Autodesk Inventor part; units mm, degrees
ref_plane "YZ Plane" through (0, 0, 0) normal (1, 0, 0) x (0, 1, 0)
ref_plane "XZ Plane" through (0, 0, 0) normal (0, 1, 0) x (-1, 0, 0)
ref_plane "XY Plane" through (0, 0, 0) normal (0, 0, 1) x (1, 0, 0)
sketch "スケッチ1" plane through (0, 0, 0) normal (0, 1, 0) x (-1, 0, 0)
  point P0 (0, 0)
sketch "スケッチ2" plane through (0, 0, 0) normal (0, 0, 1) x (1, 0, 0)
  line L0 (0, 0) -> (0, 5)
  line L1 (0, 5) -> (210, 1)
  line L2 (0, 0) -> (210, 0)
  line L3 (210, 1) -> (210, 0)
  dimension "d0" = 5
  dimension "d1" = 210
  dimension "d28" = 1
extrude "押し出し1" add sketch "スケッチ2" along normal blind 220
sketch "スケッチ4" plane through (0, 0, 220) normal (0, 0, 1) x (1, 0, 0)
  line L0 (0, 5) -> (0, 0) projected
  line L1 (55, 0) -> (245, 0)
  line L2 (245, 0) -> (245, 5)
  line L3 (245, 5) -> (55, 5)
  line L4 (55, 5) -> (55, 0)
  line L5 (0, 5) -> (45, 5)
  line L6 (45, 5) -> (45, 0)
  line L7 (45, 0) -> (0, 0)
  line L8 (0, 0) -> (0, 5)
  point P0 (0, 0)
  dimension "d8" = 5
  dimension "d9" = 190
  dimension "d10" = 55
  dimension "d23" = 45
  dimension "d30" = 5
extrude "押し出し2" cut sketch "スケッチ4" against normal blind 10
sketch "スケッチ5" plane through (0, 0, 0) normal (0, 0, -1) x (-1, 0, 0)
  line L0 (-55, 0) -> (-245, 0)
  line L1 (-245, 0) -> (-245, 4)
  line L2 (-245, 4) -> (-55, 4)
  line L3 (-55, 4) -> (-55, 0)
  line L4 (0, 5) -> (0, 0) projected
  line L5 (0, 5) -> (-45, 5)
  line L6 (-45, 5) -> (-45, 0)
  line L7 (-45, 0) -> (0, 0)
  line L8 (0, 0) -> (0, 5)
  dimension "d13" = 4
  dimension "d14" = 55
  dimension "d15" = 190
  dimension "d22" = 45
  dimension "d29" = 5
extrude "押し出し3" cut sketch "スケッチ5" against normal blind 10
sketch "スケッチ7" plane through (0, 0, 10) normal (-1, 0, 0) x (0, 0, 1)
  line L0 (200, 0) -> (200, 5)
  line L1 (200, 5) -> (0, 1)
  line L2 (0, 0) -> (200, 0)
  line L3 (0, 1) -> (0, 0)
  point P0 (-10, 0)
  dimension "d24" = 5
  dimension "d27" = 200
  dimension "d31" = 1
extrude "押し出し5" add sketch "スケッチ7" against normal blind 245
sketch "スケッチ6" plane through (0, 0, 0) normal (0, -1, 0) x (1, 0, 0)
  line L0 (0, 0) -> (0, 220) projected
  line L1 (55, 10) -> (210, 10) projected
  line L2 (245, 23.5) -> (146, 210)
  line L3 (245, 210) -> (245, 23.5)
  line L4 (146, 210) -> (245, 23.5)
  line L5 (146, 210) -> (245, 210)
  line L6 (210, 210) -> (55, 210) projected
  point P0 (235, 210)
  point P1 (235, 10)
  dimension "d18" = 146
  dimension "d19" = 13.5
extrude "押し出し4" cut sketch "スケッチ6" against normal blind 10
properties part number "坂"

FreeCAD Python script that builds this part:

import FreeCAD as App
import Part
import Sketcher

V = App.Vector

doc = App.newDocument("Part")
body = doc.addObject("PartDesign::Body", "Body")

# Sketch on XY plane
sketch1 = body.newObject("Sketcher::SketchObject", "Sketch")
sketch1.AttachmentSupport = (doc.getObject("XY_Plane"), [""])
sketch1.MapMode = "FlatFace"
sketch1.addGeometry(Part.LineSegment(V(0, 5, 0), V(0, 0, 0)), False)
sketch1.addGeometry(Part.LineSegment(V(0, 0, 0), V(210, 0, 0)), False)
sketch1.addGeometry(Part.LineSegment(V(210, 0, 0), V(210, 1, 0)), False)
sketch1.addGeometry(Part.LineSegment(V(210, 1, 0), V(0, 5, 0)), False)
sketch1.addConstraint(Sketcher.Constraint("Coincident", 0, 2, 1, 1))
sketch1.addConstraint(Sketcher.Constraint("Coincident", 1, 2, 2, 1))
sketch1.addConstraint(Sketcher.Constraint("Coincident", 2, 2, 3, 1))
sketch1.addConstraint(Sketcher.Constraint("Coincident", 3, 2, 0, 1))
sketch1.addConstraint(Sketcher.Constraint("Vertical", 0))
sketch1.addConstraint(Sketcher.Constraint("Horizontal", 1))
sketch1.addConstraint(Sketcher.Constraint("Vertical", 2))
sketch1.addConstraint(Sketcher.Constraint("Coincident", 0, 2, -1, 1))
sketch1.addConstraint(Sketcher.Constraint("DistanceX", 1, 1, 1, 2, 210.0))
sketch1.addConstraint(Sketcher.Constraint("DistanceY", 0, 2, 0, 1, 5.0))
sketch1.addConstraint(Sketcher.Constraint("DistanceY", 2, 1, 2, 2, 1.0))
pad1 = body.newObject("PartDesign::Pad", "Pad")
pad1.Profile = sketch1
pad1.Length = 220

# Sketch on XY plane
sketch2 = body.newObject("Sketcher::SketchObject", "Sketch001")
sketch2.AttachmentSupport = (doc.getObject("XY_Plane"), [""])
sketch2.MapMode = "FlatFace"
sketch2.AttachmentOffset = App.Placement(V(0, 0, 220), App.Rotation())
sketch2.addGeometry(Part.LineSegment(V(45, 5, 0), V(0, 5, 0)), False)
sketch2.addGeometry(Part.LineSegment(V(0, 5, 0), V(0, 0, 0)), False)
sketch2.addGeometry(Part.LineSegment(V(0, 0, 0), V(45, 0, 0)), False)
sketch2.addGeometry(Part.LineSegment(V(45, 0, 0), V(45, 5, 0)), False)
sketch2.addGeometry(Part.LineSegment(V(55, 5, 0), V(55, 0, 0)), False)
sketch2.addGeometry(Part.LineSegment(V(55, 0, 0), V(245, 0, 0)), False)
sketch2.addGeometry(Part.LineSegment(V(245, 0, 0), V(245, 5, 0)), False)
sketch2.addGeometry(Part.LineSegment(V(245, 5, 0), V(55, 5, 0)), False)
sketch2.addConstraint(Sketcher.Constraint("Coincident", 0, 2, 1, 1))
sketch2.addConstraint(Sketcher.Constraint("Coincident", 1, 2, 2, 1))
sketch2.addConstraint(Sketcher.Constraint("Coincident", 2, 2, 3, 1))
sketch2.addConstraint(Sketcher.Constraint("Coincident", 3, 2, 0, 1))
sketch2.addConstraint(Sketcher.Constraint("Coincident", 4, 2, 5, 1))
sketch2.addConstraint(Sketcher.Constraint("Coincident", 5, 2, 6, 1))
sketch2.addConstraint(Sketcher.Constraint("Coincident", 6, 2, 7, 1))
sketch2.addConstraint(Sketcher.Constraint("Coincident", 7, 2, 4, 1))
sketch2.addConstraint(Sketcher.Constraint("Horizontal", 0))
sketch2.addConstraint(Sketcher.Constraint("Vertical", 1))
sketch2.addConstraint(Sketcher.Constraint("Horizontal", 2))
sketch2.addConstraint(Sketcher.Constraint("Vertical", 3))
sketch2.addConstraint(Sketcher.Constraint("Vertical", 4))
sketch2.addConstraint(Sketcher.Constraint("Horizontal", 5))
sketch2.addConstraint(Sketcher.Constraint("Vertical", 6))
sketch2.addConstraint(Sketcher.Constraint("Horizontal", 7))
sketch2.addConstraint(Sketcher.Constraint("Coincident", 1, 2, -1, 1))
sketch2.addConstraint(Sketcher.Constraint("PointOnObject", 4, 2, -1))
sketch2.addConstraint(Sketcher.Constraint("Horizontal", 3, 2, 6, 2))
sketch2.addConstraint(Sketcher.Constraint("DistanceX", 0, 2, 0, 1, 45.0))
sketch2.addConstraint(Sketcher.Constraint("DistanceX", 5, 1, 5, 2, 190.0))
sketch2.addConstraint(Sketcher.Constraint("DistanceY", 1, 2, 1, 1, 5.0))
sketch2.addConstraint(Sketcher.Constraint("DistanceX", -1, 1, 4, 2, 55.0))
pocket1 = body.newObject("PartDesign::Pocket", "Pocket")
pocket1.Profile = sketch2
pocket1.Length = 10

# Sketch on XY plane
sketch3 = body.newObject("Sketcher::SketchObject", "Sketch002")
sketch3.AttachmentSupport = (doc.getObject("XY_Plane"), [""])
sketch3.MapMode = "FlatFace"
sketch3.addGeometry(Part.LineSegment(V(245, 0, 0), V(55, 0, 0)), False)
sketch3.addGeometry(Part.LineSegment(V(55, 0, 0), V(55, 4, 0)), False)
sketch3.addGeometry(Part.LineSegment(V(55, 4, 0), V(245, 4, 0)), False)
sketch3.addGeometry(Part.LineSegment(V(245, 4, 0), V(245, 0, 0)), False)
sketch3.addGeometry(Part.LineSegment(V(0, 0, 0), V(0, 5, 0)), False)
sketch3.addGeometry(Part.LineSegment(V(0, 5, 0), V(45, 5, 0)), False)
sketch3.addGeometry(Part.LineSegment(V(45, 5, 0), V(45, 0, 0)), False)
sketch3.addGeometry(Part.LineSegment(V(45, 0, 0), V(0, 0, 0)), False)
sketch3.addConstraint(Sketcher.Constraint("Coincident", 0, 2, 1, 1))
sketch3.addConstraint(Sketcher.Constraint("Coincident", 1, 2, 2, 1))
sketch3.addConstraint(Sketcher.Constraint("Coincident", 2, 2, 3, 1))
sketch3.addConstraint(Sketcher.Constraint("Coincident", 3, 2, 0, 1))
sketch3.addConstraint(Sketcher.Constraint("Coincident", 4, 2, 5, 1))
sketch3.addConstraint(Sketcher.Constraint("Coincident", 5, 2, 6, 1))
sketch3.addConstraint(Sketcher.Constraint("Coincident", 6, 2, 7, 1))
sketch3.addConstraint(Sketcher.Constraint("Coincident", 7, 2, 4, 1))
sketch3.addConstraint(Sketcher.Constraint("Horizontal", 0))
sketch3.addConstraint(Sketcher.Constraint("Vertical", 1))
sketch3.addConstraint(Sketcher.Constraint("Horizontal", 2))
sketch3.addConstraint(Sketcher.Constraint("Vertical", 3))
sketch3.addConstraint(Sketcher.Constraint("Vertical", 4))
sketch3.addConstraint(Sketcher.Constraint("Horizontal", 5))
sketch3.addConstraint(Sketcher.Constraint("Vertical", 6))
sketch3.addConstraint(Sketcher.Constraint("Horizontal", 7))
sketch3.addConstraint(Sketcher.Constraint("Coincident", 7, 2, -1, 1))
sketch3.addConstraint(Sketcher.Constraint("PointOnObject", 0, 2, -1))
sketch3.addConstraint(Sketcher.Constraint("DistanceX", 0, 2, 0, 1, 190.0))
sketch3.addConstraint(Sketcher.Constraint("DistanceX", 5, 1, 5, 2, 45.0))
sketch3.addConstraint(Sketcher.Constraint("DistanceY", 1, 1, 1, 2, 4.0))
sketch3.addConstraint(Sketcher.Constraint("DistanceY", 4, 1, 4, 2, 5.0))
sketch3.addConstraint(Sketcher.Constraint("DistanceX", -1, 1, 0, 2, 55.0))
pocket2 = body.newObject("PartDesign::Pocket", "Pocket001")
pocket2.Profile = sketch3
pocket2.Length = 10
pocket2.Reversed = True

# Sketch on YZ plane
sketch4 = body.newObject("Sketcher::SketchObject", "Sketch003")
sketch4.AttachmentSupport = (doc.getObject("YZ_Plane"), [""])
sketch4.MapMode = "FlatFace"
sketch4.addGeometry(Part.LineSegment(V(0, 10, 0), V(0, 210, 0)), False)
sketch4.addGeometry(Part.LineSegment(V(0, 210, 0), V(5, 210, 0)), False)
sketch4.addGeometry(Part.LineSegment(V(5, 210, 0), V(1, 10, 0)), False)
sketch4.addGeometry(Part.LineSegment(V(1, 10, 0), V(0, 10, 0)), False)
sketch4.addConstraint(Sketcher.Constraint("Coincident", 0, 2, 1, 1))
sketch4.addConstraint(Sketcher.Constraint("Coincident", 1, 2, 2, 1))
sketch4.addConstraint(Sketcher.Constraint("Coincident", 2, 2, 3, 1))
sketch4.addConstraint(Sketcher.Constraint("Coincident", 3, 2, 0, 1))
sketch4.addConstraint(Sketcher.Constraint("Vertical", 0))
sketch4.addConstraint(Sketcher.Constraint("Horizontal", 1))
sketch4.addConstraint(Sketcher.Constraint("Horizontal", 3))
sketch4.addConstraint(Sketcher.Constraint("PointOnObject", 0, 2, -2))
sketch4.addConstraint(Sketcher.Constraint("DistanceX", 1, 1, 1, 2, 5.0))
sketch4.addConstraint(Sketcher.Constraint("DistanceX", 3, 2, 3, 1, 1.0))
sketch4.addConstraint(Sketcher.Constraint("DistanceY", 0, 1, 0, 2, 200.0))
sketch4.addConstraint(Sketcher.Constraint("DistanceY", -1, 1, 0, 2, 210.0))
pad2 = body.newObject("PartDesign::Pad", "Pad001")
pad2.Profile = sketch4
pad2.Length = 245

# Sketch on XZ plane
sketch5 = body.newObject("Sketcher::SketchObject", "Sketch004")
sketch5.AttachmentSupport = (doc.getObject("XZ_Plane"), [""])
sketch5.MapMode = "FlatFace"
sketch5.addGeometry(Part.LineSegment(V(146, 210, 0), V(245, 24, 0)), False)
sketch5.addGeometry(Part.LineSegment(V(245, 24, 0), V(245, 210, 0)), False)
sketch5.addGeometry(Part.LineSegment(V(245, 210, 0), V(146, 210, 0)), False)
sketch5.addConstraint(Sketcher.Constraint("Coincident", 0, 2, 1, 1))
sketch5.addConstraint(Sketcher.Constraint("Coincident", 1, 2, 2, 1))
sketch5.addConstraint(Sketcher.Constraint("Coincident", 2, 2, 0, 1))
sketch5.addConstraint(Sketcher.Constraint("Vertical", 1))
sketch5.addConstraint(Sketcher.Constraint("Horizontal", 2))
sketch5.addConstraint(Sketcher.Constraint("DistanceX", -1, 1, 2, 2, 146.0))
sketch5.addConstraint(Sketcher.Constraint("DistanceX", 2, 2, 2, 1, 99.0))
sketch5.addConstraint(Sketcher.Constraint("DistanceY", 1, 1, 1, 2, 186.5))
sketch5.addConstraint(Sketcher.Constraint("DistanceY", -1, 1, 1, 2, 210.0))
pocket3 = body.newObject("PartDesign::Pocket", "Pocket002")
pocket3.Profile = sketch5
pocket3.Length = 10

doc.recompute()
